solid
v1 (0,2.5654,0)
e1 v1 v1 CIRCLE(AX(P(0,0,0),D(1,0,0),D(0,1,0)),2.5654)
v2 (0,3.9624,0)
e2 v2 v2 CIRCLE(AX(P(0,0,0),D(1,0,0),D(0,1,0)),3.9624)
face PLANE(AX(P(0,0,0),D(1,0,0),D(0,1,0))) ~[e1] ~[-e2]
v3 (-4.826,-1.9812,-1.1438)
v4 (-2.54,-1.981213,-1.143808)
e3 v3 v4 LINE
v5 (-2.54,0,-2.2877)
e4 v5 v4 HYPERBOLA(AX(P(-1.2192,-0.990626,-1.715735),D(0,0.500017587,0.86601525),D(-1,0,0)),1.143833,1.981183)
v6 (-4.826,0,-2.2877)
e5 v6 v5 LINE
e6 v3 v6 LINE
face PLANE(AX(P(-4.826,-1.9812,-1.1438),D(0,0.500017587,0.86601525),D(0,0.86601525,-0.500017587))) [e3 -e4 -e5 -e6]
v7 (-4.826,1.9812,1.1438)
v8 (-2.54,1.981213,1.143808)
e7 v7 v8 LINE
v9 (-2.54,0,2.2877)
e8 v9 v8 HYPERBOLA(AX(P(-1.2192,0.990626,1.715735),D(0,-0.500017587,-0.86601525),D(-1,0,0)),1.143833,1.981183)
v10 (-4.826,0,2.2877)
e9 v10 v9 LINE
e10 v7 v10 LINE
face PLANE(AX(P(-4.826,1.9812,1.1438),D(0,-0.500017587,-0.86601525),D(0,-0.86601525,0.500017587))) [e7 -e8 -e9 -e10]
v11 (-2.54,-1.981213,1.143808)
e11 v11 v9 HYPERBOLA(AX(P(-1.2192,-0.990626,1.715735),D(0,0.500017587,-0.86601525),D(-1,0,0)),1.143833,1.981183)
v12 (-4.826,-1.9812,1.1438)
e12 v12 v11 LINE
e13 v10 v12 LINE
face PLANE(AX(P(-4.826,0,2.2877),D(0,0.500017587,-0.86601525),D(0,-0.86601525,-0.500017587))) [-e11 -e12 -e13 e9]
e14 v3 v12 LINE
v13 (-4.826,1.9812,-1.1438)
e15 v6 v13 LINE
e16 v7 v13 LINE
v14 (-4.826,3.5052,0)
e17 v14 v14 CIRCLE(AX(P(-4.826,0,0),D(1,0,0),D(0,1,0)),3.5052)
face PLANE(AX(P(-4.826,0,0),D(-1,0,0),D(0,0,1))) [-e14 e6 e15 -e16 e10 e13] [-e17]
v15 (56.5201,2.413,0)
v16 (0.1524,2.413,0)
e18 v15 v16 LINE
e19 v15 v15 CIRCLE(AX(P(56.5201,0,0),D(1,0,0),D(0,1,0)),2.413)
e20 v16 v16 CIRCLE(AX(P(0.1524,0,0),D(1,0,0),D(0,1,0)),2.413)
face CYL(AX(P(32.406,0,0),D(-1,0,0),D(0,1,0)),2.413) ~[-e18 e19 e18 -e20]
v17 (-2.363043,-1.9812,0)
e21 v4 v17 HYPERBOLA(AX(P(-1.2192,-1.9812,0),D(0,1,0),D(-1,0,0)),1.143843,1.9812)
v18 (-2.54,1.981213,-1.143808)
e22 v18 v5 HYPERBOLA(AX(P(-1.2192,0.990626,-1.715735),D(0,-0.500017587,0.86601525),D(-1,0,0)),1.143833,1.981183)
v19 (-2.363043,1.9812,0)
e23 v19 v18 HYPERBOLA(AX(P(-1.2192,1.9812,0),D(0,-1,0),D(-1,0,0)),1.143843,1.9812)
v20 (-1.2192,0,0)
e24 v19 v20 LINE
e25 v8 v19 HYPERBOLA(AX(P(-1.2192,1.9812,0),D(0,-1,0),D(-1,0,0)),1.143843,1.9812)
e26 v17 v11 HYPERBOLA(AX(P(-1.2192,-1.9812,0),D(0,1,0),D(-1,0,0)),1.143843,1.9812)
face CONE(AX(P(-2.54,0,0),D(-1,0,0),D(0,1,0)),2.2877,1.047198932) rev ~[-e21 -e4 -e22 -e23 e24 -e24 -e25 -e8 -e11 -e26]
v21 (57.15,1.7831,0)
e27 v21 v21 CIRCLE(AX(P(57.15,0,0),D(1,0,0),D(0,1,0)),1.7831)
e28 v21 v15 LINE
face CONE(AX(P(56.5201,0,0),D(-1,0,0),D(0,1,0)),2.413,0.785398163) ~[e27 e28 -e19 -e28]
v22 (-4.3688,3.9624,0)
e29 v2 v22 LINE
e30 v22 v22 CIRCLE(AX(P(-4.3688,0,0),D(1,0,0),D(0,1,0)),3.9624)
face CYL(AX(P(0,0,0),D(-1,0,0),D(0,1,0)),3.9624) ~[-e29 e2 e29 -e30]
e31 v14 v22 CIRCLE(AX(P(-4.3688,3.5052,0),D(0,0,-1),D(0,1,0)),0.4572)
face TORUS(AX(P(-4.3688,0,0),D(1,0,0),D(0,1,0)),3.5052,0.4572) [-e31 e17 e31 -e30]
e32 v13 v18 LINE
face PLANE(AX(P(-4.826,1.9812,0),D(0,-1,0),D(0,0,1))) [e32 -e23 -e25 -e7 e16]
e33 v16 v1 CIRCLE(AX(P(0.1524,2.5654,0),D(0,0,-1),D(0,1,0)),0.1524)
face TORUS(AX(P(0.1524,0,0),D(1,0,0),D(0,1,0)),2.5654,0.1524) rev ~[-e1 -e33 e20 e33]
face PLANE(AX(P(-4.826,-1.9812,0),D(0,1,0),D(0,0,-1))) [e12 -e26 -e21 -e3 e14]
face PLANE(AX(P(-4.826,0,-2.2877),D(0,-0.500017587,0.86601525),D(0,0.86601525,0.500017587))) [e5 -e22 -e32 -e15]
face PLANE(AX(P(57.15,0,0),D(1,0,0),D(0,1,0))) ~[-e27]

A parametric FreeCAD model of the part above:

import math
import FreeCAD as App
import Part
import Sketcher
from FreeCAD import Vector
Q = App.Units.Quantity


def edges_at(feature, points):
    """Names of the edges that pass closest to the given points."""
    edges = feature.Shape.Edges
    near = lambda p: min(range(len(edges)), key=lambda i: edges[i].distToShape(Part.Vertex(*p))[0])
    return sorted({f"Edge{near(p) + 1}" for p in points})

doc = App.newDocument("Part")
params = doc.addObject("Spreadsheet::Sheet", "Params")
for row, (alias, value) in enumerate([
    ("sketch1_width", "2.25 in"),
    ("sketch1_width2", "0.19 in"),
    ("sketch1_width3", "0.09 in"),
    ("sketch1_width4", "2.298 in"),
    ("sketch1_height", "0.095 in"),
    ("revolution_angle", "360 deg"),
    ("pad1_length", "2.463 mm"),
    ("fillet_radius", "0.018 in"),
    ("chamfer_size", "0.0247992 in"),
    ("chamfer_size2", "0.0247992 in"),
    ("fillet2_radius", "0.006 in"),
], start=1):
    params.set(f"A{row}", alias)
    params.set(f"B{row}", "=" + value)
    params.setAlias(f"B{row}", alias)

body = doc.addObject("PartDesign::Body", "Body")

sketch1 = doc.addObject("Sketcher::SketchObject", "Sketch")
body.addObject(sketch1)
sketch1.AttachmentSupport = (doc.XY_Plane, [""])
sketch1.MapMode = "FlatFace"
sketch1.addGeometry([
    Part.LineSegment(Vector(-2.5, 2.3, 0), Vector(-1.2, 0, 0)),
    Part.LineSegment(Vector(-1.2, 0, 0), Vector(57.1, 0, 0)),
    Part.LineSegment(Vector(57.1, 0, 0), Vector(57.1, 2.4, 0)),
    Part.LineSegment(Vector(57.1, 2.4, 0), Vector(0, 2.4, 0)),
    Part.LineSegment(Vector(0, 2.4, 0), Vector(0, 4, 0)),
    Part.LineSegment(Vector(0, 4, 0), Vector(-4.8, 4, 0)),
    Part.LineSegment(Vector(-4.8, 4, 0), Vector(-4.8, 2.3, 0)),
    Part.LineSegment(Vector(-4.8, 2.3, 0), Vector(-2.5, 2.3, 0)),
], False)
sketch1.addConstraint([
    Sketcher.Constraint("Coincident", 0, 2, 1, 1),
    Sketcher.Constraint("Coincident", 1, 2, 2, 1),
    Sketcher.Constraint("Coincident", 2, 2, 3, 1),
    Sketcher.Constraint("Coincident", 3, 2, 4, 1),
    Sketcher.Constraint("Coincident", 4, 2, 5, 1),
    Sketcher.Constraint("Coincident", 5, 2, 6, 1),
    Sketcher.Constraint("Coincident", 6, 2, 7, 1),
    Sketcher.Constraint("Coincident", 7, 2, 0, 1),
    Sketcher.Constraint("Horizontal", 1),
    Sketcher.Constraint("Vertical", 2),
    Sketcher.Constraint("Horizontal", 3),
    Sketcher.Constraint("Vertical", 4),
    Sketcher.Constraint("Horizontal", 5),
    Sketcher.Constraint("Vertical", 6),
    Sketcher.Constraint("Horizontal", 7),
    Sketcher.Constraint("PointOnObject", 0, 2, -1),
    Sketcher.Constraint("PointOnObject", 3, 2, -2),
    Sketcher.Constraint("Angle", 0, Q("-60 deg")),
    Sketcher.Constraint("DistanceX", 3, 2, 3, 1, Q("2.25 in")),
    Sketcher.Constraint("DistanceX", 5, 2, 5, 1, Q("0.19 in")),
    Sketcher.Constraint("DistanceX", 7, 1, 7, 2, Q("0.09 in")),
    Sketcher.Constraint("DistanceX", 1, 1, 1, 2, Q("2.298 in")),
    Sketcher.Constraint("DistanceY", 2, 1, 2, 2, Q("0.095 in")),
    Sketcher.Constraint("DistanceY", 4, 1, 4, 2, Q("0.061 in")),
])
sketch1.setExpression("Constraints[18]", "Params.sketch1_width")
sketch1.setExpression("Constraints[19]", "Params.sketch1_width2")
sketch1.setExpression("Constraints[20]", "Params.sketch1_width3")
sketch1.setExpression("Constraints[21]", "Params.sketch1_width4")
sketch1.setExpression("Constraints[22]", "Params.sketch1_height")
revolution = doc.addObject("PartDesign::Revolution", "Revolution")
body.addObject(revolution)
revolution.Profile = sketch1
revolution.ReferenceAxis = (sketch1, ["H_Axis"])
revolution.setExpression("Angle", "Params.revolution_angle")

sketch2 = doc.addObject("Sketcher::SketchObject", "Sketch001")
body.addObject(sketch2)
sketch2.AttachmentSupport = (doc.YZ_Plane, [""])
sketch2.MapMode = "FlatFace"
sketch2.AttachmentOffset = App.Placement(Vector(0, 0, -0.19 * 25.4), App.Rotation())
sketch2.addGeometry([
    Part.LineSegment(Vector(2, 1.1, 0), Vector(0, 2.3, 0)),
    Part.ArcOfCircle(Part.Circle(Vector(0, 0, 0), Vector(0, 0, 1), 2.3), math.radians(30), math.radians(90)),
    Part.ArcOfCircle(Part.Circle(Vector(0, 0, 0), Vector(0, 0, 1), 2.3), math.radians(90), math.radians(150)),
    Part.LineSegment(Vector(0, 2.3, 0), Vector(-2, 1.1, 0)),
    Part.ArcOfCircle(Part.Circle(Vector(0, 0, 0), Vector(0, 0, 1), 2.3), math.radians(-30), math.radians(30)),
    Part.LineSegment(Vector(2, 1.1, 0), Vector(2, -1.1, 0)),
    Part.LineSegment(Vector(-2, 1.1, 0), Vector(-2, -1.1, 0)),
    Part.ArcOfCircle(Part.Circle(Vector(0, 0, 0), Vector(0, 0, 1), 2.3), math.radians(150), math.radians(210)),
    Part.LineSegment(Vector(-2, -1.1, 0), Vector(0, -2.3, 0)),
    Part.ArcOfCircle(Part.Circle(Vector(0, 0, 0), Vector(0, 0, 1), 2.3), math.radians(-150), math.radians(-90)),
    Part.ArcOfCircle(Part.Circle(Vector(0, 0, 0), Vector(0, 0, 1), 2.3), math.radians(-90), math.radians(-30)),
    Part.LineSegment(Vector(0, -2.3, 0), Vector(2, -1.1, 0)),
], False)
sketch2.addConstraint([
    Sketcher.Constraint("Coincident", 0, 1, 1, 1),
    Sketcher.Constraint("Coincident", 1, 2, 0, 2),
    Sketcher.Constraint("Coincident", 2, 1, 3, 1),
    Sketcher.Constraint("Coincident", 3, 2, 2, 2),
    Sketcher.Constraint("Coincident", 4, 1, 5, 2),
    Sketcher.Constraint("Coincident", 5, 1, 4, 2),
    Sketcher.Constraint("Coincident", 6, 1, 7, 1),
    Sketcher.Constraint("Coincident", 7, 2, 6, 2),
    Sketcher.Constraint("Coincident", 8, 1, 9, 1),
    Sketcher.Constraint("Coincident", 9, 2, 8, 2),
    Sketcher.Constraint("Coincident", 10, 1, 11, 1),
    Sketcher.Constraint("Coincident", 11, 2, 10, 2),
    Sketcher.Constraint("Vertical", 5),
    Sketcher.Constraint("Vertical", 6),
    Sketcher.Constraint("Coincident", 1, 3, -1, 1),
    Sketcher.Constraint("Coincident", 2, 3, -1, 1),
    Sketcher.Constraint("Coincident", 4, 3, -1, 1),
    Sketcher.Constraint("Coincident", 7, 3, -1, 1),
    Sketcher.Constraint("Coincident", 9, 3, -1, 1),
    Sketcher.Constraint("Coincident", 10, 3, -1, 1),
    Sketcher.Constraint("Coincident", 2, 1, 1, 2),
    Sketcher.Constraint("Coincident", 5, 1, 0, 1),
    Sketcher.Constraint("Coincident", 6, 1, 3, 2),
    Sketcher.Constraint("Coincident", 8, 1, 7, 2),
    Sketcher.Constraint("Coincident", 10, 1, 9, 2),
    Sketcher.Constraint("PointOnObject", 1, 2, -2),
    Sketcher.Constraint("PointOnObject", 9, 2, -2),
    Sketcher.Constraint("Parallel", 0, 8),
    Sketcher.Constraint("Parallel", 3, 11),
    Sketcher.Constraint("Angle", 0, Q("149.9988 deg")),
    Sketcher.Constraint("Radius", 1, Q("2.2877 mm")),
])
pad1 = doc.addObject("PartDesign::Pad", "Pad")
body.addObject(pad1)
pad1.Profile = sketch2
pad1.setExpression("Length", "Params.pad1_length")
doc.recompute()

fillet = doc.addObject("PartDesign::Fillet", "Fillet")
body.addObject(fillet)
fillet.Base = (pad1, edges_at(pad1, [(-4.826, -3.962, 0)]))
fillet.setExpression("Radius", "Params.fillet_radius")
doc.recompute()

chamfer = doc.addObject("PartDesign::Chamfer", "Chamfer")
body.addObject(chamfer)
chamfer.Base = (fillet, edges_at(fillet, [(57.15, -2.413, 0)]))
chamfer.ChamferType = "Two distances"
chamfer.setExpression("Size", "Params.chamfer_size")
chamfer.setExpression("Size2", "Params.chamfer_size2")
doc.recompute()

fillet2 = doc.addObject("PartDesign::Fillet", "Fillet001")
body.addObject(fillet2)
fillet2.Base = (chamfer, edges_at(chamfer, [(0, -2.413, 0)]))
fillet2.setExpression("Radius", "Params.fillet2_radius")

doc.recompute()
